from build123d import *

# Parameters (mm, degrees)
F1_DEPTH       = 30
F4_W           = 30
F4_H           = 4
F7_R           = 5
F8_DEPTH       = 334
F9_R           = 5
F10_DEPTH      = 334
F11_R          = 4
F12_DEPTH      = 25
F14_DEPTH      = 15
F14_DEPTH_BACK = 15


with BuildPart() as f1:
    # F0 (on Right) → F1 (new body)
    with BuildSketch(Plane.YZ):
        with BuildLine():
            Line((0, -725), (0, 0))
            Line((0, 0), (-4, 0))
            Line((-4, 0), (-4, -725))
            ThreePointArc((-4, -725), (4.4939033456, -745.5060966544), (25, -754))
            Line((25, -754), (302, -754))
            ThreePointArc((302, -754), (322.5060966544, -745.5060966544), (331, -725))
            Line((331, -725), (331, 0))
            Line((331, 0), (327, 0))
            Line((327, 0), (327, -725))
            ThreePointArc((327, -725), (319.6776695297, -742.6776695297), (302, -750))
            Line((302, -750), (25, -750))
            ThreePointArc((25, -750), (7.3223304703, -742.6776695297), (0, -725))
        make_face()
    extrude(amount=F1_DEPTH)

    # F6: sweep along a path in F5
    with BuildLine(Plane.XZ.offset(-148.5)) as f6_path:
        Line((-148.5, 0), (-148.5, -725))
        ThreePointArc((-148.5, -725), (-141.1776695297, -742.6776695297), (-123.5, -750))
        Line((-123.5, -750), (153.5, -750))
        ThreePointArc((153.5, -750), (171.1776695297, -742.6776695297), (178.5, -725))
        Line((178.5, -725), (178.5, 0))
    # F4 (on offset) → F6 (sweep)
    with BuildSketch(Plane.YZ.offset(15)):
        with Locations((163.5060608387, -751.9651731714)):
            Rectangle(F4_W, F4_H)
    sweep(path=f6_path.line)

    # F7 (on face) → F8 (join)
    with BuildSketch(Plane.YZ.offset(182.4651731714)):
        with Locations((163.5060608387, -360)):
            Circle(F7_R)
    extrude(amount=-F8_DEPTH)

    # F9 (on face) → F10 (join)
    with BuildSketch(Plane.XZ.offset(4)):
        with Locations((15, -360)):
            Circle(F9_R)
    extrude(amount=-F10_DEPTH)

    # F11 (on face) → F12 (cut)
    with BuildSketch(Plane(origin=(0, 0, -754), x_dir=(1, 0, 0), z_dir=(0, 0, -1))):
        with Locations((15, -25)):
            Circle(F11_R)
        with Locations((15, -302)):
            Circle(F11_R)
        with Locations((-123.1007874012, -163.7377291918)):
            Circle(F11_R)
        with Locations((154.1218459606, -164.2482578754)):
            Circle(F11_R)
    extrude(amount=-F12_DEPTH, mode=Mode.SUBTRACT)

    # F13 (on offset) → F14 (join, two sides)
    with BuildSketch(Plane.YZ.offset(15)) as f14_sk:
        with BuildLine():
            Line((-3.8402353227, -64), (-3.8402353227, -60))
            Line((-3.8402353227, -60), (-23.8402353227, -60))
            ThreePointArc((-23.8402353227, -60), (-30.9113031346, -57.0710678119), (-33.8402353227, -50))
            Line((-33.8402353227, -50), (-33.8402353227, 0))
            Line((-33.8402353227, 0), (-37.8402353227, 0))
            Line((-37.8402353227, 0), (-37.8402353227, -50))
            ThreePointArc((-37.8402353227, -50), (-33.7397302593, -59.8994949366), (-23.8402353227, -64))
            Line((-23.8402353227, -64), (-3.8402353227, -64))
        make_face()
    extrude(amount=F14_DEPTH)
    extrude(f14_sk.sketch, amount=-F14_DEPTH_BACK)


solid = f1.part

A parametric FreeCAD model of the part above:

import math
import FreeCAD as App
import Part
import Sketcher
Q = App.Units.Quantity

doc = App.newDocument("Part")
body = doc.addObject("PartDesign::Body", "Body")

# Sketch on YZ plane
sketch1 = body.newObject("Sketcher::SketchObject", "Sketch")
sketch1.AttachmentSupport = (doc.getObject("YZ_Plane"), [""])
sketch1.MapMode = "FlatFace"
sketch1.addGeometry([
    Part.LineSegment(App.Vector(0, -725, 0), App.Vector(0, 0, 0)),  # 0
    Part.LineSegment(App.Vector(0, 0, 0), App.Vector(-4, 0, 0)),  # 1
    Part.LineSegment(App.Vector(-4, 0, 0), App.Vector(-4, -725, 0)),  # 2
    Part.ArcOfCircle(Part.Circle(App.Vector(25, -725, 0), App.Vector(0, 0, 1), 29), math.radians(180), math.radians(270)),  # 3
    Part.LineSegment(App.Vector(25, -754, 0), App.Vector(302, -754, 0)),  # 4
    Part.ArcOfCircle(Part.Circle(App.Vector(302, -725, 0), App.Vector(0, 0, 1), 29), math.radians(-90), math.radians(0)),  # 5
    Part.LineSegment(App.Vector(331, -725, 0), App.Vector(331, 0, 0)),  # 6
    Part.LineSegment(App.Vector(331, 0, 0), App.Vector(327, 0, 0)),  # 7
    Part.LineSegment(App.Vector(327, 0, 0), App.Vector(327, -725, 0)),  # 8
    Part.ArcOfCircle(Part.Circle(App.Vector(302, -725, 0), App.Vector(0, 0, 1), 25), math.radians(-90), math.radians(0)),  # 9
    Part.LineSegment(App.Vector(302, -750, 0), App.Vector(25, -750, 0)),  # 10
    Part.ArcOfCircle(Part.Circle(App.Vector(25, -725, 0), App.Vector(0, 0, 1), 25), math.radians(180), math.radians(270)),  # 11
], False)
sketch1.addConstraint([
    Sketcher.Constraint("Coincident", 0, 2, 1, 1),
    Sketcher.Constraint("Coincident", 1, 2, 2, 1),
    Sketcher.Constraint("Tangent", 2, 2, 3, 1),
    Sketcher.Constraint("Tangent", 3, 2, 4, 1),
    Sketcher.Constraint("Tangent", 4, 2, 5, 1),
    Sketcher.Constraint("Tangent", 5, 2, 6, 1),
    Sketcher.Constraint("Coincident", 6, 2, 7, 1),
    Sketcher.Constraint("Coincident", 7, 2, 8, 1),
    Sketcher.Constraint("Tangent", 8, 2, 9, 2),
    Sketcher.Constraint("Tangent", 9, 1, 10, 1),
    Sketcher.Constraint("Tangent", 10, 2, 11, 2),
    Sketcher.Constraint("Tangent", 11, 1, 0, 1),
    Sketcher.Constraint("Vertical", 0),
    Sketcher.Constraint("Horizontal", 1),
    Sketcher.Constraint("Vertical", 2),
    Sketcher.Constraint("Horizontal", 4),
    Sketcher.Constraint("Vertical", 6),
    Sketcher.Constraint("Horizontal", 7),
    Sketcher.Constraint("Vertical", 8),
    Sketcher.Constraint("Horizontal", 10),
    Sketcher.Constraint("Coincident", 0, 2, -1, 1),
    Sketcher.Constraint("Coincident", 9, 3, 5, 3),
    Sketcher.Constraint("Coincident", 11, 3, 3, 3),
    Sketcher.Constraint("Equal", 3, 5),
    Sketcher.Constraint("PointOnObject", 6, 2, -1),
    Sketcher.Constraint("Radius", 3, Q("29 mm")),
    Sketcher.Constraint("Radius", 9, Q("25 mm")),
    Sketcher.Constraint("DistanceX", 4, 1, 4, 2, Q("277 mm")),
    Sketcher.Constraint("DistanceY", 0, 1, 0, 2, Q("725 mm")),
])
pad1 = body.newObject("PartDesign::Pad", "Pad")
pad1.Profile = sketch1
pad1.Length = 30

# Sketch on YZ plane
sketch2 = body.newObject("Sketcher::SketchObject", "Sketch001")
sketch2.AttachmentSupport = (doc.getObject("YZ_Plane"), [""])
sketch2.MapMode = "FlatFace"
sketch2.AttachmentOffset = App.Placement(App.Vector(0, 0, 15), App.Rotation())
sketch2.addGeometry([
    Part.LineSegment(App.Vector(148.5, -750, 0), App.Vector(148.5, -754, 0)),
    Part.LineSegment(App.Vector(148.5, -754, 0), App.Vector(178.5, -754, 0)),
    Part.LineSegment(App.Vector(178.5, -754, 0), App.Vector(178.5, -750, 0)),
    Part.LineSegment(App.Vector(178.5, -750, 0), App.Vector(148.5, -750, 0)),
], False)
sketch2.addConstraint([
    Sketcher.Constraint("Coincident", 0, 2, 1, 1),
    Sketcher.Constraint("Coincident", 1, 2, 2, 1),
    Sketcher.Constraint("Coincident", 2, 2, 3, 1),
    Sketcher.Constraint("Coincident", 3, 2, 0, 1),
    Sketcher.Constraint("Vertical", 0),
    Sketcher.Constraint("Horizontal", 1),
    Sketcher.Constraint("Vertical", 2),
    Sketcher.Constraint("Horizontal", 3),
    Sketcher.Constraint("DistanceX", 1, 1, 1, 2, Q("30 mm")),
    Sketcher.Constraint("DistanceY", 0, 2, 0, 1, Q("4 mm")),
    Sketcher.Constraint("DistanceX", -1, 1, 0, 2, Q("148.506061 mm")),
    Sketcher.Constraint("DistanceY", 0, 2, -1, 1, Q("753.965173 mm")),
])

# Sketch on XZ plane
sketch3 = body.newObject("Sketcher::SketchObject", "Sketch002")
sketch3.AttachmentSupport = (doc.getObject("XZ_Plane"), [""])
sketch3.MapMode = "FlatFace"
sketch3.AttachmentOffset = App.Placement(App.Vector(0, 0, -148.5), App.Rotation())
sketch3.addGeometry([
    Part.LineSegment(App.Vector(-148, 0, 0), App.Vector(-148, -725, 0)),  # 0
    Part.ArcOfCircle(Part.Circle(App.Vector(-124, -725, 0), App.Vector(0, 0, 1), 25), math.radians(180), math.radians(270)),  # 1
    Part.LineSegment(App.Vector(-124, -750, 0), App.Vector(154, -750, 0)),  # 2
    Part.ArcOfCircle(Part.Circle(App.Vector(154, -725, 0), App.Vector(0, 0, 1), 25), math.radians(-90), math.radians(0)),  # 3
    Part.LineSegment(App.Vector(178, -725, 0), App.Vector(178, 0, 0)),  # 4
], False)
sketch3.addConstraint([
    Sketcher.Constraint("Tangent", 0, 2, 1, 1),
    Sketcher.Constraint("Tangent", 1, 2, 2, 1),
    Sketcher.Constraint("Tangent", 2, 2, 3, 1),
    Sketcher.Constraint("Tangent", 3, 2, 4, 1),
    Sketcher.Constraint("Vertical", 0),
    Sketcher.Constraint("Horizontal", 2),
    Sketcher.Constraint("Vertical", 4),
    Sketcher.Constraint("Equal", 1, 3),
    Sketcher.Constraint("PointOnObject", 0, 1, -1),
    Sketcher.Constraint("PointOnObject", 4, 2, -1),
    Sketcher.Constraint("Radius", 1, Q("25 mm")),
    Sketcher.Constraint("DistanceX", 2, 1, 2, 2, Q("277 mm")),
    Sketcher.Constraint("DistanceY", 0, 2, 0, 1, Q("725 mm")),
    Sketcher.Constraint("DistanceX", 1, 3, -1, 1, Q("123.5 mm")),
])
doc.recompute()

additivepipe = body.newObject("PartDesign::AdditivePipe", "AdditivePipe")
additivepipe.Profile = sketch2
additivepipe.Spine = (sketch3, ["Edge1", "Edge2", "Edge3", "Edge4", "Edge5"])

# Sketch on YZ plane
sketch4 = body.newObject("Sketcher::SketchObject", "Sketch003")
sketch4.AttachmentSupport = (doc.getObject("YZ_Plane"), [""])
sketch4.MapMode = "FlatFace"
sketch4.AttachmentOffset = App.Placement(App.Vector(0, 0, 182.465173), App.Rotation())
sketch4.addGeometry(Part.Circle(App.Vector(164, -360, 0), App.Vector(0, 0, 1), 5), False)
sketch4.addConstraint([
    Sketcher.Constraint("Diameter", 0, Q("10 mm")),
    Sketcher.Constraint("DistanceY", 0, 3, -1, 1, Q("360 mm")),
    Sketcher.Constraint("DistanceX", -1, 1, 0, 3, Q("163.506061 mm")),
])
pad2 = body.newObject("PartDesign::Pad", "Pad001")
pad2.Profile = sketch4
pad2.Length = 334
pad2.Reversed = True

# Sketch on XZ plane
sketch5 = body.newObject("Sketcher::SketchObject", "Sketch004")
sketch5.AttachmentSupport = (doc.getObject("XZ_Plane"), [""])
sketch5.MapMode = "FlatFace"
sketch5.AttachmentOffset = App.Placement(App.Vector(0, 0, 4), App.Rotation())
sketch5.addGeometry(Part.Circle(App.Vector(15, -360, 0), App.Vector(0, 0, 1), 5), False)
sketch5.addConstraint([
    Sketcher.Constraint("Diameter", 0, Q("10 mm")),
    Sketcher.Constraint("DistanceX", -1, 1, 0, 3, Q("15 mm")),
    Sketcher.Constraint("DistanceY", 0, 3, -1, 1, Q("360 mm")),
])
pad3 = body.newObject("PartDesign::Pad", "Pad002")
pad3.Profile = sketch5
pad3.Length = 334
pad3.Reversed = True

# Sketch on XY plane
sketch6 = body.newObject("Sketcher::SketchObject", "Sketch005")
sketch6.AttachmentSupport = (doc.getObject("XY_Plane"), [""])
sketch6.MapMode = "FlatFace"
sketch6.AttachmentOffset = App.Placement(App.Vector(0, 0, -754), App.Rotation())
sketch6.addGeometry([
    Part.Circle(App.Vector(15, 25, 0), App.Vector(0, 0, 1), 4),
    Part.Circle(App.Vector(15, 302, 0), App.Vector(0, 0, 1), 4),
    Part.Circle(App.Vector(-123.1, 163.7, 0), App.Vector(0, 0, 1), 4),
    Part.Circle(App.Vector(154.1, 164.2, 0), App.Vector(0, 0, 1), 4),
], False)
sketch6.addConstraint([
    Sketcher.Constraint("Equal", 0, 1),
    Sketcher.Constraint("Equal", 1, 2),
    Sketcher.Constraint("Equal", 2, 3),
    Sketcher.Constraint("Vertical", 0, 3, 1, 3),
    Sketcher.Constraint("Diameter", 0, Q("8 mm")),
    Sketcher.Constraint("DistanceX", -1, 1, 0, 3, Q("15 mm")),
    Sketcher.Constraint("DistanceY", -1, 1, 0, 3, Q("25 mm")),
    Sketcher.Constraint("DistanceY", -1, 1, 1, 3, Q("302 mm")),
    Sketcher.Constraint("DistanceY", -1, 1, 2, 3, Q("163.737729 mm")),
    Sketcher.Constraint("DistanceY", 2, 3, 3, 3, Q("0.510529 mm")),
    Sketcher.Constraint("DistanceX", 2, 3, -1, 1, Q("123.100787 mm")),
    Sketcher.Constraint("DistanceX", -1, 1, 3, 3, Q("154.121846 mm")),
])
pocket1 = body.newObject("PartDesign::Pocket", "Pocket")
pocket1.Profile = sketch6
pocket1.Length = 25
pocket1.Reversed = True

# Sketch on YZ plane
sketch7 = body.newObject("Sketcher::SketchObject", "Sketch006")
sketch7.AttachmentSupport = (doc.getObject("YZ_Plane"), [""])
sketch7.MapMode = "FlatFace"
sketch7.AttachmentOffset = App.Placement(App.Vector(0, 0, 15), App.Rotation())
sketch7.addGeometry([
    Part.LineSegment(App.Vector(-3.8, -64, 0), App.Vector(-3.8, -60, 0)),  # 0
    Part.LineSegment(App.Vector(-3.8, -60, 0), App.Vector(-23.8, -60, 0)),  # 1
    Part.ArcOfCircle(Part.Circle(App.Vector(-23.8, -50, 0), App.Vector(0, 0, 1), 10), math.radians(180), math.radians(270)),  # 2
    Part.LineSegment(App.Vector(-33.8, -50, 0), App.Vector(-33.8, 0, 0)),  # 3
    Part.LineSegment(App.Vector(-33.8, 0, 0), App.Vector(-37.8, 0, 0)),  # 4
    Part.LineSegment(App.Vector(-37.8, 0, 0), App.Vector(-37.8, -50, 0)),  # 5
    Part.ArcOfCircle(Part.Circle(App.Vector(-23.8, -50, 0), App.Vector(0, 0, 1), 14), math.radians(180), math.radians(270)),  # 6
    Part.LineSegment(App.Vector(-23.8, -64, 0), App.Vector(-3.8, -64, 0)),  # 7
], False)
sketch7.addConstraint([
    Sketcher.Constraint("Coincident", 0, 2, 1, 1),
    Sketcher.Constraint("Tangent", 1, 2, 2, 2),
    Sketcher.Constraint("Tangent", 2, 1, 3, 1),
    Sketcher.Constraint("Coincident", 3, 2, 4, 1),
    Sketcher.Constraint("Coincident", 4, 2, 5, 1),
    Sketcher.Constraint("Tangent", 5, 2, 6, 1),
    Sketcher.Constraint("Tangent", 6, 2, 7, 1),
    Sketcher.Constraint("Coincident", 7, 2, 0, 1),
    Sketcher.Constraint("Vertical", 0),
    Sketcher.Constraint("Horizontal", 1),
    Sketcher.Constraint("Vertical", 3),
    Sketcher.Constraint("Horizontal", 4),
    Sketcher.Constraint("Vertical", 5),
    Sketcher.Constraint("Horizontal", 7),
    Sketcher.Constraint("Coincident", 6, 3, 2, 3),
    Sketcher.Constraint("PointOnObject", 3, 2, -1),
    Sketcher.Constraint("Radius", 2, Q("10 mm")),
    Sketcher.Constraint("Radius", 6, Q("14 mm")),
    Sketcher.Constraint("DistanceX", 1, 2, 1, 1, Q("20 mm")),
    Sketcher.Constraint("DistanceY", 3, 1, 3, 2, Q("50 mm")),
    Sketcher.Constraint("DistanceX", 2, 3, -1, 1, Q("23.840235 mm")),
])
pad4 = body.newObject("PartDesign::Pad", "Pad003")
pad4.Profile = sketch7
pad4.Type = "TwoLengths"
pad4.Length = 15
pad4.Length2 = 15

doc.recompute()
